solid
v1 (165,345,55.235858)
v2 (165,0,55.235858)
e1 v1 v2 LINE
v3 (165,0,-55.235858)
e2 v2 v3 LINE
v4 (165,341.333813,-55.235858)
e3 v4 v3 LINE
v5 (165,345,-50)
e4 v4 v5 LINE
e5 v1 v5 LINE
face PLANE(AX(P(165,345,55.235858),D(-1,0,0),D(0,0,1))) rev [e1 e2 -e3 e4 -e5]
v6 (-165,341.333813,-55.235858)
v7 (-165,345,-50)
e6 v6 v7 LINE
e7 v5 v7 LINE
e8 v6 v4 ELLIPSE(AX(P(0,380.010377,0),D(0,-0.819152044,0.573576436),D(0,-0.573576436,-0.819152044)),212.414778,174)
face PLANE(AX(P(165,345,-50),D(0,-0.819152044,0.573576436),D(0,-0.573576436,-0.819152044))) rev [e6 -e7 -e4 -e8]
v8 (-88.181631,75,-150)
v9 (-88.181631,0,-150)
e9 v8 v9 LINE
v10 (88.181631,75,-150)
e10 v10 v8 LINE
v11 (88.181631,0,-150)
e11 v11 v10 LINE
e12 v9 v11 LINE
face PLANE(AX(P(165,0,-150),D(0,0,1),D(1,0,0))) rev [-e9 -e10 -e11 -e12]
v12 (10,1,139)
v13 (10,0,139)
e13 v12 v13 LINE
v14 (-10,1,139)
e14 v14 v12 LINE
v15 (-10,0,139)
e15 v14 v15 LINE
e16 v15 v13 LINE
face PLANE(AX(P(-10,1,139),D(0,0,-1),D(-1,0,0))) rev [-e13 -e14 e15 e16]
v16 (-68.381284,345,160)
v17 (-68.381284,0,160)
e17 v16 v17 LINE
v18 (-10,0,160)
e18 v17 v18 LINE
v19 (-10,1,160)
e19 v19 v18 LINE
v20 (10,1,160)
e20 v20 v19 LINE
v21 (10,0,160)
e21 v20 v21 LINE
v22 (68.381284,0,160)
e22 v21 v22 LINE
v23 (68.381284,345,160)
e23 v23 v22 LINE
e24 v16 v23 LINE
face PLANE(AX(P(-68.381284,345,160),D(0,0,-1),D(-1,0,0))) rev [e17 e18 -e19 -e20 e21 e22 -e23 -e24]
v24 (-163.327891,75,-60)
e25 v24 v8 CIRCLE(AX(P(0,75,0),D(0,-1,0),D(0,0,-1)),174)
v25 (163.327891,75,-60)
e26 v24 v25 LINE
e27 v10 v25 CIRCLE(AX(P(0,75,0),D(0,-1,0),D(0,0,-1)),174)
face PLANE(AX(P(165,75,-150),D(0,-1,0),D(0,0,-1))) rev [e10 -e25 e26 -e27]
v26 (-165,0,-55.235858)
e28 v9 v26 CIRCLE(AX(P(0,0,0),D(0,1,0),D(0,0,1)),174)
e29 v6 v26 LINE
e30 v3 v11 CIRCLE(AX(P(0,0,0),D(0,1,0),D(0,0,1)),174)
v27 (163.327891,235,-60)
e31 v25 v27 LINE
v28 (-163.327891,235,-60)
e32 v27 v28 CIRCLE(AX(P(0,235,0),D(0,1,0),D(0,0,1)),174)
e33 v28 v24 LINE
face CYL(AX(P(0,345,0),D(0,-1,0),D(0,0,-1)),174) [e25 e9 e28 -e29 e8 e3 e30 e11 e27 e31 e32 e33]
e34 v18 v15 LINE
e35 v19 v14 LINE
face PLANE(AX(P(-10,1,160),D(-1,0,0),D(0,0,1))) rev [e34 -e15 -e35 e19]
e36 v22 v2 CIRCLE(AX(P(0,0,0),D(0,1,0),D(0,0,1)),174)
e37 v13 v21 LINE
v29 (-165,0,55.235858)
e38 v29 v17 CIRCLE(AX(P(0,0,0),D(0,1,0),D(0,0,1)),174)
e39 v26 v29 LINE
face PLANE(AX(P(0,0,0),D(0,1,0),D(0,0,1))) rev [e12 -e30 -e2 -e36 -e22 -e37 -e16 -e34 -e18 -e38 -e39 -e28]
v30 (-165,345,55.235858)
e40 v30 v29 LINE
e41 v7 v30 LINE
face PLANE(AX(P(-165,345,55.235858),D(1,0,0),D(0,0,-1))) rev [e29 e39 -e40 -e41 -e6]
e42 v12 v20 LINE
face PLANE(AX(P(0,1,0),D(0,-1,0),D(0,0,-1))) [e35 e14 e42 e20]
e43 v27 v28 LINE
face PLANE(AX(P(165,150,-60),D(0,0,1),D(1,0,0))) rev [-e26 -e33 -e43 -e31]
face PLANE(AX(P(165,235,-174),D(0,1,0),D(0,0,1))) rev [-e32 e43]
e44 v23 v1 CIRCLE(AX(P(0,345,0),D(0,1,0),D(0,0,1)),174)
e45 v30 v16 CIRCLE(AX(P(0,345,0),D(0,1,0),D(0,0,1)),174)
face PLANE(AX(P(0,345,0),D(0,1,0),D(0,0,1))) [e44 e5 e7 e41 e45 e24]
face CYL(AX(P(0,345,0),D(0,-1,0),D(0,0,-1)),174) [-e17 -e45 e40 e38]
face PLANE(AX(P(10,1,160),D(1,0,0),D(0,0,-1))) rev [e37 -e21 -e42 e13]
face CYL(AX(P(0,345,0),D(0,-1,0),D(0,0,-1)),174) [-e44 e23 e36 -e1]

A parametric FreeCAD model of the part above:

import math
import FreeCAD as App
import Part
import Sketcher
from FreeCAD import Vector
Q = App.Units.Quantity


def add_polygon(sketch, points):
    """Adds a closed chain of lines whose ends are joined by coincident constraints."""
    first, n = sketch.GeometryCount, len(points)
    for a, b in zip(points, points[1:] + points[:1]):
        sketch.addGeometry(Part.LineSegment(App.Vector(*a, 0), App.Vector(*b, 0)), False)
    for i in range(n):
        sketch.addConstraint(Sketcher.Constraint("Coincident", first + i, 2, first + (i + 1) % n, 1))

doc = App.newDocument("Part")
body = doc.addObject("PartDesign::Body", "Body")

sketch1 = body.newObject("Sketcher::SketchObject", "Sketch")
sketch1.AttachmentSupport = (doc.getObject("XZ_Plane"), [""])
sketch1.MapMode = "FlatFace"
sketch1.addGeometry([
    Part.LineSegment(Vector(-165, -55, 0), Vector(-165, 55, 0)),
    Part.ArcOfCircle(Part.Circle(Vector(0, 0, 0), Vector(0, 0, 1), 174), math.radians(113), math.radians(161)),
    Part.LineSegment(Vector(-68, 160, 0), Vector(68, 160, 0)),
    Part.ArcOfCircle(Part.Circle(Vector(0, 0, 0), Vector(0, 0, 1), 174), math.radians(19), math.radians(67)),
    Part.LineSegment(Vector(165, 55, 0), Vector(165, -55, 0)),
    Part.ArcOfCircle(Part.Circle(Vector(0, 0, 0), Vector(0, 0, 1), 174), math.radians(-161), math.radians(-19)),
], False)
sketch1.addConstraint([
    Sketcher.Constraint("Coincident", 0, 2, 1, 2),
    Sketcher.Constraint("Coincident", 1, 1, 2, 1),
    Sketcher.Constraint("Coincident", 2, 2, 3, 2),
    Sketcher.Constraint("Coincident", 3, 1, 4, 1),
    Sketcher.Constraint("Coincident", 4, 2, 5, 2),
    Sketcher.Constraint("Coincident", 5, 1, 0, 1),
    Sketcher.Constraint("Vertical", 0),
    Sketcher.Constraint("Horizontal", 2),
    Sketcher.Constraint("Vertical", 4),
    Sketcher.Constraint("Coincident", 1, 3, -1, 1),
    Sketcher.Constraint("Coincident", 3, 3, -1, 1),
    Sketcher.Constraint("Coincident", 5, 3, -1, 1),
    Sketcher.Constraint("Equal", 1, 3),
    Sketcher.Constraint("Equal", 3, 5),
    Sketcher.Constraint("Horizontal", 0, 2, 3, 1),
    Sketcher.Constraint("Radius", 1, Q("174 mm")),
    Sketcher.Constraint("DistanceX", 0, 2, -1, 1, Q("165 mm")),
    Sketcher.Constraint("DistanceY", -1, 1, 1, 1, Q("160 mm")),
])
pad1 = body.newObject("PartDesign::Pad", "Pad")
pad1.Profile = sketch1
pad1.Length = 345
pad1.Reversed = True

sketch2 = body.newObject("Sketcher::SketchObject", "Sketch001")
sketch2.AttachmentSupport = (doc.getObject("YZ_Plane"), [""])
sketch2.MapMode = "FlatFace"
add_polygon(sketch2, [(0, -543), (345, -50), (345, -543)])
add_polygon(sketch2, [(150, -130), (150, -60), (235, -60), (235, -174), (0, -174), (0, -150), (75, -150), (75, -130)])
sketch2.addConstraint([
    Sketcher.Constraint("Vertical", 1),
    Sketcher.Constraint("Horizontal", 2),
    Sketcher.Constraint("Vertical", 3),
    Sketcher.Constraint("Horizontal", 4),
    Sketcher.Constraint("Vertical", 5),
    Sketcher.Constraint("Horizontal", 6),
    Sketcher.Constraint("Vertical", 7),
    Sketcher.Constraint("Horizontal", 8),
    Sketcher.Constraint("Vertical", 9),
    Sketcher.Constraint("Horizontal", 10),
    Sketcher.Constraint("PointOnObject", 2, 2, -2),
    Sketcher.Constraint("PointOnObject", 6, 2, -2),
    Sketcher.Constraint("Equal", 8, 10),
    Sketcher.Constraint("DistanceX", 2, 2, 2, 1, Q("345 mm")),
    Sketcher.Constraint("DistanceX", 4, 1, 4, 2, Q("85 mm")),
    Sketcher.Constraint("DistanceX", 6, 2, 6, 1, Q("235 mm")),
    Sketcher.Constraint("DistanceY", 3, 1, 3, 2, Q("70 mm")),
    Sketcher.Constraint("DistanceY", 5, 2, 5, 1, Q("114 mm")),
    Sketcher.Constraint("DistanceY", 7, 1, 7, 2, Q("24 mm")),
    Sketcher.Constraint("Angle", 0, Q("55 deg")),
    Sketcher.Constraint("DistanceY", 0, 2, -1, 1, Q("50 mm")),
    Sketcher.Constraint("DistanceY", 3, 2, -1, 1, Q("60 mm")),
])
pocket1 = body.newObject("PartDesign::Pocket", "Pocket")
pocket1.Profile = sketch2
pocket1.Type = "ThroughAll"
pocket1.Midplane = True

sketch3 = body.newObject("Sketcher::SketchObject", "Sketch002")
sketch3.AttachmentSupport = (doc.getObject("XZ_Plane"), [""])
sketch3.MapMode = "FlatFace"
sketch3.AttachmentOffset = App.Placement(Vector(0, 0, -150), App.Rotation())
add_polygon(sketch3, [(-200, -130), (-200, -60), (200, -60), (200, -130)])
sketch3.addConstraint([
    Sketcher.Constraint("Vertical", 0),
    Sketcher.Constraint("Horizontal", 1),
    Sketcher.Constraint("Vertical", 2),
    Sketcher.Constraint("Horizontal", 3),
    Sketcher.Constraint("DistanceX", 1, 1, 1, 2, Q("400 mm")),
    Sketcher.Constraint("DistanceY", 0, 1, 0, 2, Q("70 mm")),
    Sketcher.Constraint("DistanceX", 0, 2, -1, 1, Q("200 mm")),
    Sketcher.Constraint("DistanceY", 0, 2, -1, 1, Q("60 mm")),
])
pocket2 = body.newObject("PartDesign::Pocket", "Pocket001")
pocket2.Profile = sketch3
pocket2.Length = 75
pocket2.Reversed = True

sketch4 = body.newObject("Sketcher::SketchObject", "Sketch003")
sketch4.AttachmentSupport = (doc.getObject("XZ_Plane"), [""])
sketch4.MapMode = "FlatFace"
add_polygon(sketch4, [(-10, 160), (-10, 139), (10, 139), (10, 160)])
sketch4.addConstraint([
    Sketcher.Constraint("Vertical", 0),
    Sketcher.Constraint("Horizontal", 1),
    Sketcher.Constraint("Vertical", 2),
    Sketcher.Constraint("Horizontal", 3),
    Sketcher.Constraint("DistanceX", 1, 1, 1, 2, Q("20 mm")),
    Sketcher.Constraint("DistanceY", 0, 2, 0, 1, Q("21 mm")),
    Sketcher.Constraint("DistanceX", 0, 2, -1, 1, Q("10 mm")),
    Sketcher.Constraint("DistanceY", -1, 1, 0, 2, Q("139 mm")),
])
pocket3 = body.newObject("PartDesign::Pocket", "Pocket002")
pocket3.Profile = sketch4
pocket3.Length = 1

doc.recompute()
